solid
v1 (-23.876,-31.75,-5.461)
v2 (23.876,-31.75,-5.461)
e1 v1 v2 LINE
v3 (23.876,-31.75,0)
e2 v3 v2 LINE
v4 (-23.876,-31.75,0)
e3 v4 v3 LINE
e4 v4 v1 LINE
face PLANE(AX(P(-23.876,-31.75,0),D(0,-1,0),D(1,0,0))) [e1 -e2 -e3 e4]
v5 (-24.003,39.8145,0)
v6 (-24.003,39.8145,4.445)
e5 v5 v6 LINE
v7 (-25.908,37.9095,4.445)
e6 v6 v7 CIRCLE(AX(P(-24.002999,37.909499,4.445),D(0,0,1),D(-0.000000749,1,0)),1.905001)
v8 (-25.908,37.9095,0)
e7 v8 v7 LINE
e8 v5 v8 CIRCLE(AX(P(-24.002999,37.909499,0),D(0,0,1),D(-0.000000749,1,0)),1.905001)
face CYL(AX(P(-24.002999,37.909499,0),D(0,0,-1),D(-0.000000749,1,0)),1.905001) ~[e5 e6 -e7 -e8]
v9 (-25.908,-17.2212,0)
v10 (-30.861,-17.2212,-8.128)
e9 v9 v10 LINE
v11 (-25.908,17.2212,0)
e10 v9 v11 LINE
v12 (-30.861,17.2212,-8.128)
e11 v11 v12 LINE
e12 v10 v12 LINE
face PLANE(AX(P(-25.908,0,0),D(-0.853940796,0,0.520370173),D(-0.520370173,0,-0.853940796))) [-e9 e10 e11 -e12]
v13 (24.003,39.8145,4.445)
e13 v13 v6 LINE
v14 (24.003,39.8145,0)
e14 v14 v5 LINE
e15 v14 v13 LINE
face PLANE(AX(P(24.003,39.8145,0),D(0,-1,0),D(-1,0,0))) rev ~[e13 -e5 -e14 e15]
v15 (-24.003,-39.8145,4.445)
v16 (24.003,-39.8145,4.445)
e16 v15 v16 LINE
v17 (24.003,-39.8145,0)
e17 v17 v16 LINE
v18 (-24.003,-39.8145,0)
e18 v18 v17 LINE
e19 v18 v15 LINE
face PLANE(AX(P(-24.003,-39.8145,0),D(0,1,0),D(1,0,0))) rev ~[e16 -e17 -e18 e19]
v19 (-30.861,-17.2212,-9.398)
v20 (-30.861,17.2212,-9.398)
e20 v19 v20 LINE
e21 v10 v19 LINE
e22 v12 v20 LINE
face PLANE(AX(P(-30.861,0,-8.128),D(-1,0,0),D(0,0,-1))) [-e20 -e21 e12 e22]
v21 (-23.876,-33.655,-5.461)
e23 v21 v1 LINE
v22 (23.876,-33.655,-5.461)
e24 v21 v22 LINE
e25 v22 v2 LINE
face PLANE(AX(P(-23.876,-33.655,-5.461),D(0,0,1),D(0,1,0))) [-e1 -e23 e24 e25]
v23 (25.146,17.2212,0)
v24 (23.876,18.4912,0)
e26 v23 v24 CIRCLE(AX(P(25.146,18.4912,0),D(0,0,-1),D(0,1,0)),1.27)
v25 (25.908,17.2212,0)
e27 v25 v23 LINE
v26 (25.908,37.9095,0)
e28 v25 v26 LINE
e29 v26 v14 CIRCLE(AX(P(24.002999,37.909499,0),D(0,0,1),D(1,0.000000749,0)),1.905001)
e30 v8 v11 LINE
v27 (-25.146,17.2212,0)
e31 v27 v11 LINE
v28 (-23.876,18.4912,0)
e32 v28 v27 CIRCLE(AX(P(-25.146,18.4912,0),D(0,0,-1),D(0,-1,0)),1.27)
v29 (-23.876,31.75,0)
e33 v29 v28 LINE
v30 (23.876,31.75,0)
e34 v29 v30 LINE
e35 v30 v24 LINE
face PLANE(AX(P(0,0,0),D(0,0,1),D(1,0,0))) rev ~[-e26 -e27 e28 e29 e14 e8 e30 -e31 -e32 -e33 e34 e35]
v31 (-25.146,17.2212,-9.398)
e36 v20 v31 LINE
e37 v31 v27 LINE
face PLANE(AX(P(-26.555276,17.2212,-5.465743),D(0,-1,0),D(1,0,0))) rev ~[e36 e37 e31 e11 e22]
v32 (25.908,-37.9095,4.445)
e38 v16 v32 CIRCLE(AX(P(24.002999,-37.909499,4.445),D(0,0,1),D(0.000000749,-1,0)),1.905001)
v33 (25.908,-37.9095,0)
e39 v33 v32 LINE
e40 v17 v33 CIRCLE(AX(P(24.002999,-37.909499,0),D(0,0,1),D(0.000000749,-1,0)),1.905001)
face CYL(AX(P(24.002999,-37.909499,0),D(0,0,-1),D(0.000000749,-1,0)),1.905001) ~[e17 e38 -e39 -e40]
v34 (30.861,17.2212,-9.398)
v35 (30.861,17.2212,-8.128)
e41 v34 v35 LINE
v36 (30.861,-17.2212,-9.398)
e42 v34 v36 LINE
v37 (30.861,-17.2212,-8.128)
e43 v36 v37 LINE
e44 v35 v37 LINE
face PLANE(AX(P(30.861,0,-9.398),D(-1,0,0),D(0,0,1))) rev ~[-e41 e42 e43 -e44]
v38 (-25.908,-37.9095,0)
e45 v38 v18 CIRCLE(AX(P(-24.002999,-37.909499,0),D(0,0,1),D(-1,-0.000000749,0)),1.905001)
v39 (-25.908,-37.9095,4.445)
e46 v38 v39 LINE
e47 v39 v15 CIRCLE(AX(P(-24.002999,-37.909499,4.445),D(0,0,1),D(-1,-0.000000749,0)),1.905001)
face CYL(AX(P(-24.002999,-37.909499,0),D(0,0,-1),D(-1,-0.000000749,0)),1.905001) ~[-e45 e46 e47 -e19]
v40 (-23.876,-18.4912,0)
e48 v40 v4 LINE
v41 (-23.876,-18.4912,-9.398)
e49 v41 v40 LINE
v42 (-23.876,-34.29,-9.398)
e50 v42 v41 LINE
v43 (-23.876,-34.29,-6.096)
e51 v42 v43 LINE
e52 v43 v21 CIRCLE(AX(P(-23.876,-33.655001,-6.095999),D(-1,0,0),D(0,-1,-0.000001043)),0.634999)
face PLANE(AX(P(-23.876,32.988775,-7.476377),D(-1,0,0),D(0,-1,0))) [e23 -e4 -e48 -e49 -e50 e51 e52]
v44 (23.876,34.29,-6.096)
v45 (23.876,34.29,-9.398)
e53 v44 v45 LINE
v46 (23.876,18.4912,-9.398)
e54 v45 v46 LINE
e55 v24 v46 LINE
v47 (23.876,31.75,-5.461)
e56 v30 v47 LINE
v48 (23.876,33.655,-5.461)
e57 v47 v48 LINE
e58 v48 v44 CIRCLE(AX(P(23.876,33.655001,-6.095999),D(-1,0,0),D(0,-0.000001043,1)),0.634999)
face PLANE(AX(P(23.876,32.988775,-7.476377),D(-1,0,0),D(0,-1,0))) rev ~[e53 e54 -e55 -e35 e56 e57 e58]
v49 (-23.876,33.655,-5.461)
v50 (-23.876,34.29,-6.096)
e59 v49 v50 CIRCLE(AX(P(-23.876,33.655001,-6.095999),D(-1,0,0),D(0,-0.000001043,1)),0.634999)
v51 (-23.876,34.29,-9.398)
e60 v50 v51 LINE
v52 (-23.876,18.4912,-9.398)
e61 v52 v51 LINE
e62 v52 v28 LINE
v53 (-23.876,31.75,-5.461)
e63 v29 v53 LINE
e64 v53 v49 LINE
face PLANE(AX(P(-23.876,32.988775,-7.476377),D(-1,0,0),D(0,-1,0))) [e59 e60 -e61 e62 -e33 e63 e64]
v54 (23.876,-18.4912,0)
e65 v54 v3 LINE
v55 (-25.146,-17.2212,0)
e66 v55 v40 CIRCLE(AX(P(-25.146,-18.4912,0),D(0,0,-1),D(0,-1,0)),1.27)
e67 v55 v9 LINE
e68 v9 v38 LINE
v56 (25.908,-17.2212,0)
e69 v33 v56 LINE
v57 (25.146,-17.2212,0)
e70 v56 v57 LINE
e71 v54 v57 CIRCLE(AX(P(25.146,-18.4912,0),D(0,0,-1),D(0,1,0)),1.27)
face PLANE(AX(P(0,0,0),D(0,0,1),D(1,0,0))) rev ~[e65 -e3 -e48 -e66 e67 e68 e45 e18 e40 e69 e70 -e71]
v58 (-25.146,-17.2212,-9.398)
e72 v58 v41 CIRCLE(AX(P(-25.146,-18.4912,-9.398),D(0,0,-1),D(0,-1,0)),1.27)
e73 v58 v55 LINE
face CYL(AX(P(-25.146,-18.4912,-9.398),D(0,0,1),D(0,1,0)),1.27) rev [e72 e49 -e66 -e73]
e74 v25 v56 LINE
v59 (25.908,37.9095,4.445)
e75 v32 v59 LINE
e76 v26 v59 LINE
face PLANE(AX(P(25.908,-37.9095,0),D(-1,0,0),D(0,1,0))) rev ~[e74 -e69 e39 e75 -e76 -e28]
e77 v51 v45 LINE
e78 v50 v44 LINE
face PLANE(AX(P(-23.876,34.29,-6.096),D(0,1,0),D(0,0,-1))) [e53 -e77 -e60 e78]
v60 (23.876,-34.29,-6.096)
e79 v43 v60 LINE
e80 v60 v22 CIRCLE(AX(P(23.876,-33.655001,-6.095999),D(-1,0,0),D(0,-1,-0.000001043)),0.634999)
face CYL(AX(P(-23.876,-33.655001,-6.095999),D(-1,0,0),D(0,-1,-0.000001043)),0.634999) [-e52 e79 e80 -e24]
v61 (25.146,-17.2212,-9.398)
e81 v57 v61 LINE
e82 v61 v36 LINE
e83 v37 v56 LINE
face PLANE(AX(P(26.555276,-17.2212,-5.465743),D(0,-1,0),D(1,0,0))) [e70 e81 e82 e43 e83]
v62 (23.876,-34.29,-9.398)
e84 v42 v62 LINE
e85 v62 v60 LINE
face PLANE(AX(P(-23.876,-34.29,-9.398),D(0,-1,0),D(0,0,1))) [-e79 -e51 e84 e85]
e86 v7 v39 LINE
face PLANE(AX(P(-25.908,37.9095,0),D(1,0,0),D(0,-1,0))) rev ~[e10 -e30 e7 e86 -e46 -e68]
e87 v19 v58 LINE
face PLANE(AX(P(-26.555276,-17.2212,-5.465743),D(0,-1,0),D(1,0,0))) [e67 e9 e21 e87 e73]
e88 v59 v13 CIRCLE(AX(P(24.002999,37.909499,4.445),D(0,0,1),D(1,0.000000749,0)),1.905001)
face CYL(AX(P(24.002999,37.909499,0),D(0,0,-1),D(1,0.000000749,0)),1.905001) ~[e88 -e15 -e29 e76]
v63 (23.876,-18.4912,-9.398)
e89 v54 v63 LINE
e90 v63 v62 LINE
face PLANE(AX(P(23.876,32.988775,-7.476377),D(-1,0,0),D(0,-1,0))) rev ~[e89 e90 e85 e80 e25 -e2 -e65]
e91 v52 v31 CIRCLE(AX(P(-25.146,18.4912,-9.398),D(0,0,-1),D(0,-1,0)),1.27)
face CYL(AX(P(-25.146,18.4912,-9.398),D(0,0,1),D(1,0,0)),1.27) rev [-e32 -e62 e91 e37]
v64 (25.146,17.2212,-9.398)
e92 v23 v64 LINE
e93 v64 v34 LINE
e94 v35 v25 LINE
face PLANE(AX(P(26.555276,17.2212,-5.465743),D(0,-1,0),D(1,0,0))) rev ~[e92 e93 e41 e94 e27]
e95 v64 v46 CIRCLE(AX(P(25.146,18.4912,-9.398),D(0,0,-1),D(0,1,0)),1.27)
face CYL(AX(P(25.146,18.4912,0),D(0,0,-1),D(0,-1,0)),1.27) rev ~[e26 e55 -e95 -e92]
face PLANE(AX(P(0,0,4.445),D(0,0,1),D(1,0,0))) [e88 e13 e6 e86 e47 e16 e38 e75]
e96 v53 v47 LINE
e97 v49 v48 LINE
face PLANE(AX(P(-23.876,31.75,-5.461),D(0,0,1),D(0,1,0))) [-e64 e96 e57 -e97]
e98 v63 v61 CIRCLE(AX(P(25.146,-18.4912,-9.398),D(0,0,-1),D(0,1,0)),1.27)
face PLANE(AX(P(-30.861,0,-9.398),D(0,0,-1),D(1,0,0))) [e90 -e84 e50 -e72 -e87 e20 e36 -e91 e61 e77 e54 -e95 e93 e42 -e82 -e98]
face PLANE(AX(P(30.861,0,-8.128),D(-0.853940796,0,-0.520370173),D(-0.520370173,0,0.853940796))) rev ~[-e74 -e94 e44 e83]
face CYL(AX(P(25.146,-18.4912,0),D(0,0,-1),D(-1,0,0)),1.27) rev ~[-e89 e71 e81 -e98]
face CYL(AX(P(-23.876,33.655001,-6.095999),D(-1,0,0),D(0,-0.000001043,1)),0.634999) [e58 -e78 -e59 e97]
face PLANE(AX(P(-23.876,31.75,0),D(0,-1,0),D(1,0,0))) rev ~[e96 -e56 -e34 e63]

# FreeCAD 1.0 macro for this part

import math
import FreeCAD as App
import Part
import Sketcher
from FreeCAD import Vector
Q = App.Units.Quantity


def edges_at(feature, points):
    """Names of the edges that pass closest to the given points."""
    edges = feature.Shape.Edges
    near = lambda p: min(range(len(edges)), key=lambda i: edges[i].distToShape(Part.Vertex(*p))[0])
    return sorted({f"Edge{near(p) + 1}" for p in points})


def add_polygon(sketch, points):
    """Adds a closed chain of lines whose ends are joined by coincident constraints."""
    first, n = sketch.GeometryCount, len(points)
    for a, b in zip(points, points[1:] + points[:1]):
        sketch.addGeometry(Part.LineSegment(App.Vector(*a, 0), App.Vector(*b, 0)), False)
    for i in range(n):
        sketch.addConstraint(Sketcher.Constraint("Coincident", first + i, 2, first + (i + 1) % n, 1))

doc = App.newDocument("Part")
body = doc.addObject("PartDesign::Body", "Body")

# Sketch on XY plane
sketch1 = doc.addObject("Sketcher::SketchObject", "Sketch")
body.addObject(sketch1)
sketch1.AttachmentSupport = (doc.XY_Plane, [""])
sketch1.MapMode = "FlatFace"
sketch1.addGeometry(Part.LineSegment(Vector(-24.003, -39.8145, 0), Vector(24.003, -39.8145, 0)), False)
sketch1.addGeometry(Part.ArcOfCircle(Part.Circle(Vector(24.002999, -37.909499, 0), Vector(0, 0, 1), 1.905001), math.radians(-89.999957), math.radians(-0.000043)), False)
sketch1.addGeometry(Part.LineSegment(Vector(25.908, -37.9095, 0), Vector(25.908, 37.9095, 0)), False)
sketch1.addGeometry(Part.ArcOfCircle(Part.Circle(Vector(24.002999, 37.909499, 0), Vector(0, 0, 1), 1.905001), math.radians(0.000043), math.radians(89.999957)), False)
sketch1.addGeometry(Part.LineSegment(Vector(24.003, 39.8145, 0), Vector(-24.003, 39.8145, 0)), False)
sketch1.addGeometry(Part.ArcOfCircle(Part.Circle(Vector(-24.002999, 37.909499, 0), Vector(0, 0, 1), 1.905001), math.radians(90.000043), math.radians(179.999957)), False)
sketch1.addGeometry(Part.LineSegment(Vector(-25.908, 37.9095, 0), Vector(-25.908, -37.9095, 0)), False)
sketch1.addGeometry(Part.ArcOfCircle(Part.Circle(Vector(-24.002999, -37.909499, 0), Vector(0, 0, 1), 1.905001), math.radians(-179.999957), math.radians(-90.000043)), False)
sketch1.addConstraint(Sketcher.Constraint("Tangent", 0, 2, 1, 1))
sketch1.addConstraint(Sketcher.Constraint("Tangent", 1, 2, 2, 1))
sketch1.addConstraint(Sketcher.Constraint("Tangent", 2, 2, 3, 1))
sketch1.addConstraint(Sketcher.Constraint("Tangent", 3, 2, 4, 1))
sketch1.addConstraint(Sketcher.Constraint("Tangent", 4, 2, 5, 1))
sketch1.addConstraint(Sketcher.Constraint("Tangent", 5, 2, 6, 1))
sketch1.addConstraint(Sketcher.Constraint("Tangent", 6, 2, 7, 1))
sketch1.addConstraint(Sketcher.Constraint("Tangent", 7, 2, 0, 1))
sketch1.addConstraint(Sketcher.Constraint("Horizontal", 0))
sketch1.addConstraint(Sketcher.Constraint("Vertical", 2))
sketch1.addConstraint(Sketcher.Constraint("Horizontal", 4))
sketch1.addConstraint(Sketcher.Constraint("Vertical", 6))
sketch1.addConstraint(Sketcher.Constraint("Equal", 1, 3))
sketch1.addConstraint(Sketcher.Constraint("Equal", 3, 5))
sketch1.addConstraint(Sketcher.Constraint("Equal", 5, 7))
sketch1.addConstraint(Sketcher.Constraint("Symmetric", 1, 3, 5, 3, -1, 1))
sketch1.addConstraint(Sketcher.Constraint("Radius", 1, Q("0.0750001 in")))
sketch1.addConstraint(Sketcher.Constraint("DistanceX", 0, 1, 0, 2, Q("1.89 in")))
sketch1.addConstraint(Sketcher.Constraint("DistanceY", 2, 1, 2, 2, Q("2.985 in")))
pad1 = doc.addObject("PartDesign::Pad", "Pad")
body.addObject(pad1)
pad1.Profile = sketch1
pad1.Length = Q("0.175 in")

# Sketch on XY plane
sketch2 = doc.addObject("Sketcher::SketchObject", "Sketch001")
body.addObject(sketch2)
sketch2.AttachmentSupport = (doc.XY_Plane, [""])
sketch2.MapMode = "FlatFace"
add_polygon(sketch2, [(-23.876, -31.75), (-23.876, 31.75), (23.876, 31.75), (23.876, -31.75)])  # lines 0-3
sketch2.addConstraint(Sketcher.Constraint("Vertical", 0))
sketch2.addConstraint(Sketcher.Constraint("Horizontal", 1))
sketch2.addConstraint(Sketcher.Constraint("Vertical", 2))
sketch2.addConstraint(Sketcher.Constraint("Horizontal", 3))
sketch2.addConstraint(Sketcher.Constraint("Symmetric", 0, 2, 2, 2, -1, 1))
sketch2.addConstraint(Sketcher.Constraint("DistanceY", 0, 1, 0, 2, Q("2.5 in")))
sketch2.addConstraint(Sketcher.Constraint("DistanceX", 1, 1, 1, 2, Q("1.88 in")))
pad2 = doc.addObject("PartDesign::Pad", "Pad001")
body.addObject(pad2)
pad2.Profile = sketch2
pad2.Length = Q("0.37 in")
pad2.Reversed = True

# Sketch on YZ plane
sketch3 = doc.addObject("Sketcher::SketchObject", "Sketch002")
body.addObject(sketch3)
sketch3.AttachmentSupport = (doc.YZ_Plane, [""])
sketch3.MapMode = "FlatFace"
sketch3.AttachmentOffset = App.Placement(Vector(0, 0, -0.94 * 25.4), App.Rotation())
sketch3.addGeometry(Part.LineSegment(Vector(34.29, -9.398, 0), Vector(31.75, -9.398, 0)), False)
sketch3.addGeometry(Part.LineSegment(Vector(31.75, -9.398, 0), Vector(31.75, -5.461, 0)), False)
sketch3.addGeometry(Part.LineSegment(Vector(31.75, -5.461, 0), Vector(33.655, -5.461, 0)), False)
sketch3.addGeometry(Part.ArcOfCircle(Part.Circle(Vector(33.655001, -6.095999, 0), Vector(0, 0, 1), 0.634999), math.radians(-0.00006), math.radians(90.00006)), False)
sketch3.addGeometry(Part.LineSegment(Vector(34.29, -6.096, 0), Vector(34.29, -9.398, 0)), False)
sketch3.addGeometry(Part.ArcOfCircle(Part.Circle(Vector(-33.655001, -6.095999, 0), Vector(0, 0, 1), 0.634999), math.radians(89.99994), math.radians(180.00006)), False)
sketch3.addGeometry(Part.LineSegment(Vector(-33.655, -5.461, 0), Vector(-31.75, -5.461, 0)), False)
sketch3.addGeometry(Part.LineSegment(Vector(-31.75, -5.461, 0), Vector(-31.75, -9.398, 0)), False)
sketch3.addGeometry(Part.LineSegment(Vector(-31.75, -9.398, 0), Vector(-34.29, -9.398, 0)), False)
sketch3.addGeometry(Part.LineSegment(Vector(-34.29, -9.398, 0), Vector(-34.29, -6.096, 0)), False)
sketch3.addConstraint(Sketcher.Constraint("Coincident", 0, 2, 1, 1))
sketch3.addConstraint(Sketcher.Constraint("Coincident", 1, 2, 2, 1))
sketch3.addConstraint(Sketcher.Constraint("Tangent", 2, 2, 3, 2))
sketch3.addConstraint(Sketcher.Constraint("Tangent", 3, 1, 4, 1))
sketch3.addConstraint(Sketcher.Constraint("Coincident", 4, 2, 0, 1))
sketch3.addConstraint(Sketcher.Constraint("Tangent", 5, 1, 6, 1))
sketch3.addConstraint(Sketcher.Constraint("Coincident", 6, 2, 7, 1))
sketch3.addConstraint(Sketcher.Constraint("Coincident", 7, 2, 8, 1))
sketch3.addConstraint(Sketcher.Constraint("Coincident", 8, 2, 9, 1))
sketch3.addConstraint(Sketcher.Constraint("Tangent", 9, 2, 5, 2))
sketch3.addConstraint(Sketcher.Constraint("Horizontal", 0))
sketch3.addConstraint(Sketcher.Constraint("Vertical", 1))
sketch3.addConstraint(Sketcher.Constraint("Horizontal", 2))
sketch3.addConstraint(Sketcher.Constraint("Vertical", 4))
sketch3.addConstraint(Sketcher.Constraint("Horizontal", 6))
sketch3.addConstraint(Sketcher.Constraint("Vertical", 7))
sketch3.addConstraint(Sketcher.Constraint("Horizontal", 8))
sketch3.addConstraint(Sketcher.Constraint("Vertical", 9))
sketch3.addConstraint(Sketcher.Constraint("Equal", 3, 5))
sketch3.addConstraint(Sketcher.Constraint("Symmetric", 3, 3, 5, 3, -2))
sketch3.addConstraint(Sketcher.Constraint("Symmetric", 0, 2, 7, 2, -2))
sketch3.addConstraint(Sketcher.Constraint("DistanceX", 0, 2, 0, 1, Q("0.1 in")))
sketch3.addConstraint(Sketcher.Constraint("Radius", 3, Q("0.025 in")))
sketch3.addConstraint(Sketcher.Constraint("DistanceY", 4, 2, 4, 1, Q("0.13 in")))
sketch3.addConstraint(Sketcher.Constraint("DistanceX", 6, 2, 1, 2, Q("2.5 in")))
sketch3.addConstraint(Sketcher.Constraint("DistanceY", 3, 3, -1, 1, Q("0.24 in")))
pad3 = doc.addObject("PartDesign::Pad", "Pad002")
body.addObject(pad3)
pad3.Profile = sketch3
pad3.Type = "UpToLast"

# Sketch on XZ plane
sketch4 = doc.addObject("Sketcher::SketchObject", "Sketch003")
body.addObject(sketch4)
sketch4.AttachmentSupport = (doc.XZ_Plane, [""])
sketch4.MapMode = "FlatFace"
add_polygon(sketch4, [(-30.861, -9.398), (-23.876, -9.398), (-23.876, 0), (-25.908, 0), (-30.861, -8.128)])  # lines 0-4
add_polygon(sketch4, [(30.861, -9.398), (30.861, -8.128), (25.908, 0), (23.876, 0), (23.876, -9.398)])  # lines 5-9
sketch4.addConstraint(Sketcher.Constraint("Horizontal", 0))
sketch4.addConstraint(Sketcher.Constraint("Vertical", 1))
sketch4.addConstraint(Sketcher.Constraint("Horizontal", 2))
sketch4.addConstraint(Sketcher.Constraint("Vertical", 4))
sketch4.addConstraint(Sketcher.Constraint("Vertical", 5))
sketch4.addConstraint(Sketcher.Constraint("Horizontal", 7))
sketch4.addConstraint(Sketcher.Constraint("Vertical", 8))
sketch4.addConstraint(Sketcher.Constraint("Horizontal", 9))
sketch4.addConstraint(Sketcher.Constraint("Symmetric", 2, 2, 6, 2, -1, 1))
sketch4.addConstraint(Sketcher.Constraint("Symmetric", 3, 2, 5, 2, -2))
sketch4.addConstraint(Sketcher.Constraint("Symmetric", 1, 2, 7, 2, -2))
sketch4.addConstraint(Sketcher.Constraint("Horizontal", 4, 2, 8, 2))
sketch4.addConstraint(Sketcher.Constraint("DistanceX", 2, 2, 2, 1, Q("0.08 in")))
sketch4.addConstraint(Sketcher.Constraint("DistanceY", 1, 1, 1, 2, Q("0.37 in")))
sketch4.addConstraint(Sketcher.Constraint("DistanceY", 4, 2, 4, 1, Q("0.05 in")))
sketch4.addConstraint(Sketcher.Constraint("DistanceX", 0, 1, 0, 2, Q("0.275 in")))
sketch4.addConstraint(Sketcher.Constraint("DistanceX", 0, 2, -1, 1, Q("0.94 in")))
pad4 = doc.addObject("PartDesign::Pad", "Pad003")
body.addObject(pad4)
pad4.Profile = sketch4
pad4.Type = "TwoLengths"
pad4.Length = Q("0.678 in")
pad4.Length2 = Q("0.678 in")
doc.recompute()

fillet = doc.addObject("PartDesign::Fillet", "Fillet")
body.addObject(fillet)
fillet.Base = (pad4, edges_at(pad4, [
    (23.876, -17.221, -4.699),
    (23.876, 17.221, -4.699),
    (-23.876, 17.221, -4.699),
    (-23.876, -17.221, -4.699),
]))
fillet.Radius = Q("0.05 in")

doc.recompute()
